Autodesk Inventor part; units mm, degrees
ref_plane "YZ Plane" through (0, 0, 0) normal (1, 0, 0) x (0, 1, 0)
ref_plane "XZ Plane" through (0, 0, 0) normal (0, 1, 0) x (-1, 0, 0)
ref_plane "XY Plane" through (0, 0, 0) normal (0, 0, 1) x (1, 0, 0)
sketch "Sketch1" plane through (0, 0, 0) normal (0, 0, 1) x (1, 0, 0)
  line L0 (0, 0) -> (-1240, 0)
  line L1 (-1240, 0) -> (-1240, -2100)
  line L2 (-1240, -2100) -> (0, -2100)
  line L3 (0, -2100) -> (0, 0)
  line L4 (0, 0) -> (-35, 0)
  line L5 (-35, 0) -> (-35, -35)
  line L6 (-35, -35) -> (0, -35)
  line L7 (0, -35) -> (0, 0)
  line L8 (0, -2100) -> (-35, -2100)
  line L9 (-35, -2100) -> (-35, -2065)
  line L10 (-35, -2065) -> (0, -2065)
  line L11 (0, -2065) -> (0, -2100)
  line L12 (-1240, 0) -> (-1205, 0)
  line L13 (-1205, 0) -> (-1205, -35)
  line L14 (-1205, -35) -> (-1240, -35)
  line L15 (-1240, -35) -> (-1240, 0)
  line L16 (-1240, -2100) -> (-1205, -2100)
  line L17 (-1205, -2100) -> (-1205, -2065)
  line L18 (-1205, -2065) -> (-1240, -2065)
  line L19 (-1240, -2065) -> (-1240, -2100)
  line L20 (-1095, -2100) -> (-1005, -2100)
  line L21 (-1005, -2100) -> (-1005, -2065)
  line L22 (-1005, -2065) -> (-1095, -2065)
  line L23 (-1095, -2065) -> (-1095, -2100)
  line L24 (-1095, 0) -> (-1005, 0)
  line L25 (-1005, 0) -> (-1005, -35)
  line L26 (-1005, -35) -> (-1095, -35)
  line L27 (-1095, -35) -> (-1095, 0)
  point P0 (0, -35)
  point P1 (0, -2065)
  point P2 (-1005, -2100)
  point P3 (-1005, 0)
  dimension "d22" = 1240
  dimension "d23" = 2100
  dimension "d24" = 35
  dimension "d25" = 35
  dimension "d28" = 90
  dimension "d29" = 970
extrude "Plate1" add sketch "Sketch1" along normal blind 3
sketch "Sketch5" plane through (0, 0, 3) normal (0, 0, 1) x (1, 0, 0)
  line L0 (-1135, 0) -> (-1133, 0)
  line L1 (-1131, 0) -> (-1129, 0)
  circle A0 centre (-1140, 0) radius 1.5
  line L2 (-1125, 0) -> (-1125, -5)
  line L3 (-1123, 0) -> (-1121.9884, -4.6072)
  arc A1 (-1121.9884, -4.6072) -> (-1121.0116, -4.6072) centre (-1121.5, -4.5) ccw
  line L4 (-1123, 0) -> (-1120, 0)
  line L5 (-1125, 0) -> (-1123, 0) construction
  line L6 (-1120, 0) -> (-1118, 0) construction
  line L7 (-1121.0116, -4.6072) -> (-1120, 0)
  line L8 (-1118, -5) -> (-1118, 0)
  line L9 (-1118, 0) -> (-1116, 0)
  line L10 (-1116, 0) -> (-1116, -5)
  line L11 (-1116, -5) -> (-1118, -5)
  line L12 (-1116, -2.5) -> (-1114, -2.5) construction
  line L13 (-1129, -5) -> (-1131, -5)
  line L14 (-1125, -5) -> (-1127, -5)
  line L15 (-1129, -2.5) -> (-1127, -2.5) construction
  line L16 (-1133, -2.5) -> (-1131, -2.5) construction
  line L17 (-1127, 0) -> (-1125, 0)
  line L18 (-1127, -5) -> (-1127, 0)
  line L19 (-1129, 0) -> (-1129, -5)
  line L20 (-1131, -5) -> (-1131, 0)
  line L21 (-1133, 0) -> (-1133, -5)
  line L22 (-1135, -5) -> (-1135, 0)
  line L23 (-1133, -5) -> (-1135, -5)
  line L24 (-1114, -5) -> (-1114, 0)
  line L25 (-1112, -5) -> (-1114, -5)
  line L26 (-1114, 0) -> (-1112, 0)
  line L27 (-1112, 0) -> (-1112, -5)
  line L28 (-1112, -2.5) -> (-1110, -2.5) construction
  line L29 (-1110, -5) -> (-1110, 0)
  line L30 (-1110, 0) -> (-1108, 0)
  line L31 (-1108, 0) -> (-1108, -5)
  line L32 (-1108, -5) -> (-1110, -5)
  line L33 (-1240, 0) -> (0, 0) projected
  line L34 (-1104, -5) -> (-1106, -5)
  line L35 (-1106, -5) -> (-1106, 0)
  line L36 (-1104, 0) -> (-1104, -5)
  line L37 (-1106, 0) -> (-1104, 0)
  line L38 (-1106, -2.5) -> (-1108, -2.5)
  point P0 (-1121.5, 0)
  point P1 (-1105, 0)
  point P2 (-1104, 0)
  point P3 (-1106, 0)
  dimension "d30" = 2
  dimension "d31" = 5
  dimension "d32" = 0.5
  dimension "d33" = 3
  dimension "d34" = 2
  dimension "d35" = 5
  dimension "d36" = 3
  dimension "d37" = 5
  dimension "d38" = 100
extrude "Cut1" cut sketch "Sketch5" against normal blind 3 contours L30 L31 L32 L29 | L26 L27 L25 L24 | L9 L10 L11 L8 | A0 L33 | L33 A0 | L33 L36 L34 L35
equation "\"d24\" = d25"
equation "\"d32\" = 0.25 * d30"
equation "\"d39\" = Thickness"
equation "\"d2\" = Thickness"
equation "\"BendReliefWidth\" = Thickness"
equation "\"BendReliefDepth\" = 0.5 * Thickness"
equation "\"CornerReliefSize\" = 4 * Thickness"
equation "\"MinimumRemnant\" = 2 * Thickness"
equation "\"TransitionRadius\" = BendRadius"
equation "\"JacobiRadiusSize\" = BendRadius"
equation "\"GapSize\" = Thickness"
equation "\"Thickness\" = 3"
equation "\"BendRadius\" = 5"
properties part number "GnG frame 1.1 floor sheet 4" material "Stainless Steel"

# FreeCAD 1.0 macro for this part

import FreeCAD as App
import Part
import Sketcher

V = App.Vector

doc = App.newDocument("Part")
body = doc.addObject("PartDesign::Body", "Body")

# Sketch on XY plane
sketch1 = body.newObject("Sketcher::SketchObject", "Sketch")
sketch1.AttachmentSupport = (doc.getObject("XY_Plane"), [""])
sketch1.MapMode = "FlatFace"
sketch1.addGeometry([
    Part.LineSegment(V(0, 0, 0), V(-1240, 0, 0)),
    Part.LineSegment(V(-1240, 0, 0), V(-1240, -2100, 0)),
    Part.LineSegment(V(-1240, -2100, 0), V(0, -2100, 0)),
    Part.LineSegment(V(0, -2100, 0), V(0, 0, 0)),
], False)
sketch1.addConstraint([
    Sketcher.Constraint("Coincident", 0, 2, 1, 1),
    Sketcher.Constraint("Coincident", 1, 2, 2, 1),
    Sketcher.Constraint("Coincident", 2, 2, 3, 1),
    Sketcher.Constraint("Coincident", 3, 2, 0, 1),
    Sketcher.Constraint("Horizontal", 0),
    Sketcher.Constraint("Vertical", 1),
    Sketcher.Constraint("Horizontal", 2),
    Sketcher.Constraint("Vertical", 3),
    Sketcher.Constraint("Coincident", 3, 2, -1, 1),
    Sketcher.Constraint("DistanceX", 0, 2, 0, 1, 1240.0),
    Sketcher.Constraint("DistanceY", 1, 2, 1, 1, 2100.0),
])
pad1 = body.newObject("PartDesign::Pad", "Pad")
pad1.Profile = sketch1
pad1.Length = 3

# Sketch on XY plane
sketch2 = body.newObject("Sketcher::SketchObject", "Sketch001")
sketch2.AttachmentSupport = (doc.getObject("XY_Plane"), [""])
sketch2.MapMode = "FlatFace"
sketch2.AttachmentOffset = App.Placement(V(0, 0, 3), App.Rotation())
sketch2.addGeometry([
    Part.LineSegment(V(-1108, 0, 0), V(-1110, 0, 0)),  # 0
    Part.LineSegment(V(-1110, 0, 0), V(-1110, -5, 0)),  # 1
    Part.LineSegment(V(-1110, -5, 0), V(-1108, -5, 0)),  # 2
    Part.LineSegment(V(-1108, -5, 0), V(-1108, 0, 0)),  # 3
    Part.LineSegment(V(-1112, 0, 0), V(-1114, 0, 0)),  # 4
    Part.LineSegment(V(-1114, 0, 0), V(-1114, -5, 0)),  # 5
    Part.LineSegment(V(-1114, -5, 0), V(-1112, -5, 0)),  # 6
    Part.LineSegment(V(-1112, -5, 0), V(-1112, 0, 0)),  # 7
    Part.LineSegment(V(-1116, 0, 0), V(-1118, 0, 0)),  # 8
    Part.LineSegment(V(-1118, 0, 0), V(-1118, -5, 0)),  # 9
    Part.LineSegment(V(-1118, -5, 0), V(-1116, -5, 0)),  # 10
    Part.LineSegment(V(-1116, -5, 0), V(-1116, 0, 0)),  # 11
    Part.Circle(V(-1140, 0, 0), V(0, 0, 1), 1.5),  # 12
    Part.LineSegment(V(-1104, 0, 0), V(-1106, 0, 0)),  # 13
    Part.LineSegment(V(-1106, 0, 0), V(-1106, -5, 0)),  # 14
    Part.LineSegment(V(-1106, -5, 0), V(-1104, -5, 0)),  # 15
    Part.LineSegment(V(-1104, -5, 0), V(-1104, 0, 0)),  # 16
], False)
sketch2.addConstraint([
    Sketcher.Constraint("Coincident", 0, 2, 1, 1),
    Sketcher.Constraint("Coincident", 1, 2, 2, 1),
    Sketcher.Constraint("Coincident", 2, 2, 3, 1),
    Sketcher.Constraint("Coincident", 3, 2, 0, 1),
    Sketcher.Constraint("Coincident", 4, 2, 5, 1),
    Sketcher.Constraint("Coincident", 5, 2, 6, 1),
    Sketcher.Constraint("Coincident", 6, 2, 7, 1),
    Sketcher.Constraint("Coincident", 7, 2, 4, 1),
    Sketcher.Constraint("Coincident", 8, 2, 9, 1),
    Sketcher.Constraint("Coincident", 9, 2, 10, 1),
    Sketcher.Constraint("Coincident", 10, 2, 11, 1),
    Sketcher.Constraint("Coincident", 11, 2, 8, 1),
    Sketcher.Constraint("Coincident", 13, 2, 14, 1),
    Sketcher.Constraint("Coincident", 14, 2, 15, 1),
    Sketcher.Constraint("Coincident", 15, 2, 16, 1),
    Sketcher.Constraint("Coincident", 16, 2, 13, 1),
    Sketcher.Constraint("Horizontal", 0),
    Sketcher.Constraint("Vertical", 1),
    Sketcher.Constraint("Horizontal", 2),
    Sketcher.Constraint("Vertical", 3),
    Sketcher.Constraint("Horizontal", 4),
    Sketcher.Constraint("Vertical", 5),
    Sketcher.Constraint("Horizontal", 6),
    Sketcher.Constraint("Vertical", 7),
    Sketcher.Constraint("Horizontal", 8),
    Sketcher.Constraint("Vertical", 9),
    Sketcher.Constraint("Horizontal", 10),
    Sketcher.Constraint("Vertical", 11),
    Sketcher.Constraint("Horizontal", 13),
    Sketcher.Constraint("Vertical", 14),
    Sketcher.Constraint("Horizontal", 15),
    Sketcher.Constraint("Vertical", 16),
    Sketcher.Constraint("PointOnObject", 12, 3, -1),
    Sketcher.Constraint("PointOnObject", 0, 2, -1),
    Sketcher.Constraint("PointOnObject", 4, 2, -1),
    Sketcher.Constraint("PointOnObject", 8, 2, -1),
    Sketcher.Constraint("PointOnObject", 13, 2, -1),
    Sketcher.Constraint("Horizontal", 2, 2, 5, 2),
    Sketcher.Constraint("Horizontal", 6, 2, 9, 2),
    Sketcher.Constraint("Horizontal", 10, 2, 14, 2),
    Sketcher.Constraint("Equal", 2, 4),
    Sketcher.Constraint("Equal", 6, 8),
    Sketcher.Constraint("Equal", 10, 13),
    Sketcher.Constraint("Diameter", 12, 3.0),
    Sketcher.Constraint("DistanceX", 0, 2, 0, 1, 2.0),
    Sketcher.Constraint("DistanceY", 1, 2, 1, 1, 5.0),
    Sketcher.Constraint("DistanceX", 6, 2, 1, 2, 2.0),
    Sketcher.Constraint("DistanceX", 10, 2, 5, 2, 2.0),
    Sketcher.Constraint("DistanceX", 3, 2, 13, 2, 2.0),
    Sketcher.Constraint("DistanceX", 12, 3, -1, 1, 1140.0),
    Sketcher.Constraint("DistanceX", 0, 2, -1, 1, 1110.0),
])
pocket1 = body.newObject("PartDesign::Pocket", "Pocket")
pocket1.Profile = sketch2
pocket1.Length = 3

doc.recompute()
